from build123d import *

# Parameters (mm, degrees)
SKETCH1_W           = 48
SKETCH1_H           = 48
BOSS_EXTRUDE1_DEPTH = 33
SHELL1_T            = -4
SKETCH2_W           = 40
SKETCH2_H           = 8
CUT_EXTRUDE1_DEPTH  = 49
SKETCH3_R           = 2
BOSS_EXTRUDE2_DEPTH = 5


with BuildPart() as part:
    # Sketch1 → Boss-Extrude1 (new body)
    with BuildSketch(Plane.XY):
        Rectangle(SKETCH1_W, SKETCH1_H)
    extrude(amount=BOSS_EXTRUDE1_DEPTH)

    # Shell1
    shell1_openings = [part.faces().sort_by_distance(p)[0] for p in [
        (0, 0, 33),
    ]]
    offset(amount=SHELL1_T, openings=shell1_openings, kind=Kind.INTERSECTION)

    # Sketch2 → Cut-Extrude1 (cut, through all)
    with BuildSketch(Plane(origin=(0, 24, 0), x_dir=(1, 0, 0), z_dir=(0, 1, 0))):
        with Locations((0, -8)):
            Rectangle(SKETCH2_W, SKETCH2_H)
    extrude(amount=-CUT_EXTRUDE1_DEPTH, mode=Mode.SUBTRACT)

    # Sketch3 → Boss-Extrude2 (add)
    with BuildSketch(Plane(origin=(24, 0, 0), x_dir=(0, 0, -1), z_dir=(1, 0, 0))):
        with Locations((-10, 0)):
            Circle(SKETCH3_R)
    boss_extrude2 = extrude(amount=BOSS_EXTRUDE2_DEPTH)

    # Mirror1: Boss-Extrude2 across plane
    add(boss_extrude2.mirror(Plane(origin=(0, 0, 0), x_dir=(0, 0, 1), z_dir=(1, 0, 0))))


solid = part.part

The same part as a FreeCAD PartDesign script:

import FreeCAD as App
import Part
import Sketcher
from FreeCAD import Vector
Q = App.Units.Quantity


def faces_at(feature, points):
    """Names of the faces that lie closest to the given points."""
    faces = feature.Shape.Faces
    near = lambda p: min(range(len(faces)), key=lambda i: faces[i].distToShape(Part.Vertex(*p))[0])
    return sorted({f"Face{near(p) + 1}" for p in points})

doc = App.newDocument("Part")
body = doc.addObject("PartDesign::Body", "Body")

sketch1 = doc.addObject("Sketcher::SketchObject", "Sketch")
body.addObject(sketch1)
sketch1.AttachmentSupport = (doc.XY_Plane, [""])
sketch1.MapMode = "FlatFace"
sketch1.addGeometry([
    Part.LineSegment(Vector(-24, 24, 0), Vector(-24, -24, 0)),
    Part.LineSegment(Vector(-24, -24, 0), Vector(24, -24, 0)),
    Part.LineSegment(Vector(24, -24, 0), Vector(24, 24, 0)),
    Part.LineSegment(Vector(24, 24, 0), Vector(-24, 24, 0)),
], False)
sketch1.addConstraint([
    Sketcher.Constraint("Coincident", 0, 2, 1, 1),
    Sketcher.Constraint("Coincident", 1, 2, 2, 1),
    Sketcher.Constraint("Coincident", 2, 2, 3, 1),
    Sketcher.Constraint("Coincident", 3, 2, 0, 1),
    Sketcher.Constraint("Vertical", 0),
    Sketcher.Constraint("Horizontal", 1),
    Sketcher.Constraint("Vertical", 2),
    Sketcher.Constraint("Horizontal", 3),
    Sketcher.Constraint("Symmetric", 0, 2, 2, 2, -1, 1),
    Sketcher.Constraint("Equal", 3, 0),
    Sketcher.Constraint("DistanceX", 1, 1, 1, 2, Q("48 mm")),
])
pad1 = doc.addObject("PartDesign::Pad", "Pad")
body.addObject(pad1)
pad1.Profile = sketch1
pad1.Length = 33
doc.recompute()

thickness = doc.addObject("PartDesign::Thickness", "Thickness")
body.addObject(thickness)
thickness.Base = (pad1, faces_at(pad1, [(0, 0, 33)]))
thickness.Value = 4
thickness.Reversed = True
thickness.Join = "Intersection"

sketch2 = doc.addObject("Sketcher::SketchObject", "Sketch001")
body.addObject(sketch2)
sketch2.AttachmentSupport = (doc.XZ_Plane, [""])
sketch2.MapMode = "FlatFace"
sketch2.AttachmentOffset = App.Placement(Vector(0, 0, -24), App.Rotation())
sketch2.addGeometry([
    Part.LineSegment(Vector(-20, 4, 0), Vector(-20, 12, 0)),
    Part.LineSegment(Vector(-20, 12, 0), Vector(20, 12, 0)),
    Part.LineSegment(Vector(20, 12, 0), Vector(20, 4, 0)),
    Part.LineSegment(Vector(20, 4, 0), Vector(-20, 4, 0)),
], False)
sketch2.addConstraint([
    Sketcher.Constraint("Coincident", 0, 2, 1, 1),
    Sketcher.Constraint("Coincident", 1, 2, 2, 1),
    Sketcher.Constraint("Coincident", 2, 2, 3, 1),
    Sketcher.Constraint("Coincident", 3, 2, 0, 1),
    Sketcher.Constraint("Vertical", 0),
    Sketcher.Constraint("Horizontal", 1),
    Sketcher.Constraint("Vertical", 2),
    Sketcher.Constraint("Horizontal", 3),
    Sketcher.Constraint("DistanceX", 1, 1, 1, 2, Q("40 mm")),
    Sketcher.Constraint("DistanceY", 0, 1, 0, 2, Q("8 mm")),
    Sketcher.Constraint("DistanceX", 0, 2, -1, 1, Q("20 mm")),
    Sketcher.Constraint("DistanceY", -1, 1, 0, 2, Q("12 mm")),
])
pocket1 = doc.addObject("PartDesign::Pocket", "Pocket")
body.addObject(pocket1)
pocket1.Profile = sketch2
pocket1.Type = "ThroughAll"
pocket1.Reversed = True

sketch3 = doc.addObject("Sketcher::SketchObject", "Sketch002")
body.addObject(sketch3)
sketch3.AttachmentSupport = (doc.YZ_Plane, [""])
sketch3.MapMode = "FlatFace"
sketch3.AttachmentOffset = App.Placement(Vector(0, 0, 24), App.Rotation())
sketch3.addGeometry(Part.Circle(Vector(0, 10, 0), Vector(0, 0, 1), 2), False)
sketch3.addConstraint([
    Sketcher.Constraint("PointOnObject", 0, 3, -2),
    Sketcher.Constraint("Diameter", 0, Q("4 mm")),
    Sketcher.Constraint("DistanceY", -1, 1, 0, 3, Q("10 mm")),
])
pad2 = doc.addObject("PartDesign::Pad", "Pad001")
body.addObject(pad2)
pad2.Profile = sketch3
pad2.Length = 5
doc.recompute()

mirrored = doc.addObject("PartDesign::Mirrored", "Mirrored")
body.addObject(mirrored)
mirrored.Originals = [pad2]
mirrored.MirrorPlane = (doc.YZ_Plane, [""])
body.Tip = mirrored

doc.recompute()
